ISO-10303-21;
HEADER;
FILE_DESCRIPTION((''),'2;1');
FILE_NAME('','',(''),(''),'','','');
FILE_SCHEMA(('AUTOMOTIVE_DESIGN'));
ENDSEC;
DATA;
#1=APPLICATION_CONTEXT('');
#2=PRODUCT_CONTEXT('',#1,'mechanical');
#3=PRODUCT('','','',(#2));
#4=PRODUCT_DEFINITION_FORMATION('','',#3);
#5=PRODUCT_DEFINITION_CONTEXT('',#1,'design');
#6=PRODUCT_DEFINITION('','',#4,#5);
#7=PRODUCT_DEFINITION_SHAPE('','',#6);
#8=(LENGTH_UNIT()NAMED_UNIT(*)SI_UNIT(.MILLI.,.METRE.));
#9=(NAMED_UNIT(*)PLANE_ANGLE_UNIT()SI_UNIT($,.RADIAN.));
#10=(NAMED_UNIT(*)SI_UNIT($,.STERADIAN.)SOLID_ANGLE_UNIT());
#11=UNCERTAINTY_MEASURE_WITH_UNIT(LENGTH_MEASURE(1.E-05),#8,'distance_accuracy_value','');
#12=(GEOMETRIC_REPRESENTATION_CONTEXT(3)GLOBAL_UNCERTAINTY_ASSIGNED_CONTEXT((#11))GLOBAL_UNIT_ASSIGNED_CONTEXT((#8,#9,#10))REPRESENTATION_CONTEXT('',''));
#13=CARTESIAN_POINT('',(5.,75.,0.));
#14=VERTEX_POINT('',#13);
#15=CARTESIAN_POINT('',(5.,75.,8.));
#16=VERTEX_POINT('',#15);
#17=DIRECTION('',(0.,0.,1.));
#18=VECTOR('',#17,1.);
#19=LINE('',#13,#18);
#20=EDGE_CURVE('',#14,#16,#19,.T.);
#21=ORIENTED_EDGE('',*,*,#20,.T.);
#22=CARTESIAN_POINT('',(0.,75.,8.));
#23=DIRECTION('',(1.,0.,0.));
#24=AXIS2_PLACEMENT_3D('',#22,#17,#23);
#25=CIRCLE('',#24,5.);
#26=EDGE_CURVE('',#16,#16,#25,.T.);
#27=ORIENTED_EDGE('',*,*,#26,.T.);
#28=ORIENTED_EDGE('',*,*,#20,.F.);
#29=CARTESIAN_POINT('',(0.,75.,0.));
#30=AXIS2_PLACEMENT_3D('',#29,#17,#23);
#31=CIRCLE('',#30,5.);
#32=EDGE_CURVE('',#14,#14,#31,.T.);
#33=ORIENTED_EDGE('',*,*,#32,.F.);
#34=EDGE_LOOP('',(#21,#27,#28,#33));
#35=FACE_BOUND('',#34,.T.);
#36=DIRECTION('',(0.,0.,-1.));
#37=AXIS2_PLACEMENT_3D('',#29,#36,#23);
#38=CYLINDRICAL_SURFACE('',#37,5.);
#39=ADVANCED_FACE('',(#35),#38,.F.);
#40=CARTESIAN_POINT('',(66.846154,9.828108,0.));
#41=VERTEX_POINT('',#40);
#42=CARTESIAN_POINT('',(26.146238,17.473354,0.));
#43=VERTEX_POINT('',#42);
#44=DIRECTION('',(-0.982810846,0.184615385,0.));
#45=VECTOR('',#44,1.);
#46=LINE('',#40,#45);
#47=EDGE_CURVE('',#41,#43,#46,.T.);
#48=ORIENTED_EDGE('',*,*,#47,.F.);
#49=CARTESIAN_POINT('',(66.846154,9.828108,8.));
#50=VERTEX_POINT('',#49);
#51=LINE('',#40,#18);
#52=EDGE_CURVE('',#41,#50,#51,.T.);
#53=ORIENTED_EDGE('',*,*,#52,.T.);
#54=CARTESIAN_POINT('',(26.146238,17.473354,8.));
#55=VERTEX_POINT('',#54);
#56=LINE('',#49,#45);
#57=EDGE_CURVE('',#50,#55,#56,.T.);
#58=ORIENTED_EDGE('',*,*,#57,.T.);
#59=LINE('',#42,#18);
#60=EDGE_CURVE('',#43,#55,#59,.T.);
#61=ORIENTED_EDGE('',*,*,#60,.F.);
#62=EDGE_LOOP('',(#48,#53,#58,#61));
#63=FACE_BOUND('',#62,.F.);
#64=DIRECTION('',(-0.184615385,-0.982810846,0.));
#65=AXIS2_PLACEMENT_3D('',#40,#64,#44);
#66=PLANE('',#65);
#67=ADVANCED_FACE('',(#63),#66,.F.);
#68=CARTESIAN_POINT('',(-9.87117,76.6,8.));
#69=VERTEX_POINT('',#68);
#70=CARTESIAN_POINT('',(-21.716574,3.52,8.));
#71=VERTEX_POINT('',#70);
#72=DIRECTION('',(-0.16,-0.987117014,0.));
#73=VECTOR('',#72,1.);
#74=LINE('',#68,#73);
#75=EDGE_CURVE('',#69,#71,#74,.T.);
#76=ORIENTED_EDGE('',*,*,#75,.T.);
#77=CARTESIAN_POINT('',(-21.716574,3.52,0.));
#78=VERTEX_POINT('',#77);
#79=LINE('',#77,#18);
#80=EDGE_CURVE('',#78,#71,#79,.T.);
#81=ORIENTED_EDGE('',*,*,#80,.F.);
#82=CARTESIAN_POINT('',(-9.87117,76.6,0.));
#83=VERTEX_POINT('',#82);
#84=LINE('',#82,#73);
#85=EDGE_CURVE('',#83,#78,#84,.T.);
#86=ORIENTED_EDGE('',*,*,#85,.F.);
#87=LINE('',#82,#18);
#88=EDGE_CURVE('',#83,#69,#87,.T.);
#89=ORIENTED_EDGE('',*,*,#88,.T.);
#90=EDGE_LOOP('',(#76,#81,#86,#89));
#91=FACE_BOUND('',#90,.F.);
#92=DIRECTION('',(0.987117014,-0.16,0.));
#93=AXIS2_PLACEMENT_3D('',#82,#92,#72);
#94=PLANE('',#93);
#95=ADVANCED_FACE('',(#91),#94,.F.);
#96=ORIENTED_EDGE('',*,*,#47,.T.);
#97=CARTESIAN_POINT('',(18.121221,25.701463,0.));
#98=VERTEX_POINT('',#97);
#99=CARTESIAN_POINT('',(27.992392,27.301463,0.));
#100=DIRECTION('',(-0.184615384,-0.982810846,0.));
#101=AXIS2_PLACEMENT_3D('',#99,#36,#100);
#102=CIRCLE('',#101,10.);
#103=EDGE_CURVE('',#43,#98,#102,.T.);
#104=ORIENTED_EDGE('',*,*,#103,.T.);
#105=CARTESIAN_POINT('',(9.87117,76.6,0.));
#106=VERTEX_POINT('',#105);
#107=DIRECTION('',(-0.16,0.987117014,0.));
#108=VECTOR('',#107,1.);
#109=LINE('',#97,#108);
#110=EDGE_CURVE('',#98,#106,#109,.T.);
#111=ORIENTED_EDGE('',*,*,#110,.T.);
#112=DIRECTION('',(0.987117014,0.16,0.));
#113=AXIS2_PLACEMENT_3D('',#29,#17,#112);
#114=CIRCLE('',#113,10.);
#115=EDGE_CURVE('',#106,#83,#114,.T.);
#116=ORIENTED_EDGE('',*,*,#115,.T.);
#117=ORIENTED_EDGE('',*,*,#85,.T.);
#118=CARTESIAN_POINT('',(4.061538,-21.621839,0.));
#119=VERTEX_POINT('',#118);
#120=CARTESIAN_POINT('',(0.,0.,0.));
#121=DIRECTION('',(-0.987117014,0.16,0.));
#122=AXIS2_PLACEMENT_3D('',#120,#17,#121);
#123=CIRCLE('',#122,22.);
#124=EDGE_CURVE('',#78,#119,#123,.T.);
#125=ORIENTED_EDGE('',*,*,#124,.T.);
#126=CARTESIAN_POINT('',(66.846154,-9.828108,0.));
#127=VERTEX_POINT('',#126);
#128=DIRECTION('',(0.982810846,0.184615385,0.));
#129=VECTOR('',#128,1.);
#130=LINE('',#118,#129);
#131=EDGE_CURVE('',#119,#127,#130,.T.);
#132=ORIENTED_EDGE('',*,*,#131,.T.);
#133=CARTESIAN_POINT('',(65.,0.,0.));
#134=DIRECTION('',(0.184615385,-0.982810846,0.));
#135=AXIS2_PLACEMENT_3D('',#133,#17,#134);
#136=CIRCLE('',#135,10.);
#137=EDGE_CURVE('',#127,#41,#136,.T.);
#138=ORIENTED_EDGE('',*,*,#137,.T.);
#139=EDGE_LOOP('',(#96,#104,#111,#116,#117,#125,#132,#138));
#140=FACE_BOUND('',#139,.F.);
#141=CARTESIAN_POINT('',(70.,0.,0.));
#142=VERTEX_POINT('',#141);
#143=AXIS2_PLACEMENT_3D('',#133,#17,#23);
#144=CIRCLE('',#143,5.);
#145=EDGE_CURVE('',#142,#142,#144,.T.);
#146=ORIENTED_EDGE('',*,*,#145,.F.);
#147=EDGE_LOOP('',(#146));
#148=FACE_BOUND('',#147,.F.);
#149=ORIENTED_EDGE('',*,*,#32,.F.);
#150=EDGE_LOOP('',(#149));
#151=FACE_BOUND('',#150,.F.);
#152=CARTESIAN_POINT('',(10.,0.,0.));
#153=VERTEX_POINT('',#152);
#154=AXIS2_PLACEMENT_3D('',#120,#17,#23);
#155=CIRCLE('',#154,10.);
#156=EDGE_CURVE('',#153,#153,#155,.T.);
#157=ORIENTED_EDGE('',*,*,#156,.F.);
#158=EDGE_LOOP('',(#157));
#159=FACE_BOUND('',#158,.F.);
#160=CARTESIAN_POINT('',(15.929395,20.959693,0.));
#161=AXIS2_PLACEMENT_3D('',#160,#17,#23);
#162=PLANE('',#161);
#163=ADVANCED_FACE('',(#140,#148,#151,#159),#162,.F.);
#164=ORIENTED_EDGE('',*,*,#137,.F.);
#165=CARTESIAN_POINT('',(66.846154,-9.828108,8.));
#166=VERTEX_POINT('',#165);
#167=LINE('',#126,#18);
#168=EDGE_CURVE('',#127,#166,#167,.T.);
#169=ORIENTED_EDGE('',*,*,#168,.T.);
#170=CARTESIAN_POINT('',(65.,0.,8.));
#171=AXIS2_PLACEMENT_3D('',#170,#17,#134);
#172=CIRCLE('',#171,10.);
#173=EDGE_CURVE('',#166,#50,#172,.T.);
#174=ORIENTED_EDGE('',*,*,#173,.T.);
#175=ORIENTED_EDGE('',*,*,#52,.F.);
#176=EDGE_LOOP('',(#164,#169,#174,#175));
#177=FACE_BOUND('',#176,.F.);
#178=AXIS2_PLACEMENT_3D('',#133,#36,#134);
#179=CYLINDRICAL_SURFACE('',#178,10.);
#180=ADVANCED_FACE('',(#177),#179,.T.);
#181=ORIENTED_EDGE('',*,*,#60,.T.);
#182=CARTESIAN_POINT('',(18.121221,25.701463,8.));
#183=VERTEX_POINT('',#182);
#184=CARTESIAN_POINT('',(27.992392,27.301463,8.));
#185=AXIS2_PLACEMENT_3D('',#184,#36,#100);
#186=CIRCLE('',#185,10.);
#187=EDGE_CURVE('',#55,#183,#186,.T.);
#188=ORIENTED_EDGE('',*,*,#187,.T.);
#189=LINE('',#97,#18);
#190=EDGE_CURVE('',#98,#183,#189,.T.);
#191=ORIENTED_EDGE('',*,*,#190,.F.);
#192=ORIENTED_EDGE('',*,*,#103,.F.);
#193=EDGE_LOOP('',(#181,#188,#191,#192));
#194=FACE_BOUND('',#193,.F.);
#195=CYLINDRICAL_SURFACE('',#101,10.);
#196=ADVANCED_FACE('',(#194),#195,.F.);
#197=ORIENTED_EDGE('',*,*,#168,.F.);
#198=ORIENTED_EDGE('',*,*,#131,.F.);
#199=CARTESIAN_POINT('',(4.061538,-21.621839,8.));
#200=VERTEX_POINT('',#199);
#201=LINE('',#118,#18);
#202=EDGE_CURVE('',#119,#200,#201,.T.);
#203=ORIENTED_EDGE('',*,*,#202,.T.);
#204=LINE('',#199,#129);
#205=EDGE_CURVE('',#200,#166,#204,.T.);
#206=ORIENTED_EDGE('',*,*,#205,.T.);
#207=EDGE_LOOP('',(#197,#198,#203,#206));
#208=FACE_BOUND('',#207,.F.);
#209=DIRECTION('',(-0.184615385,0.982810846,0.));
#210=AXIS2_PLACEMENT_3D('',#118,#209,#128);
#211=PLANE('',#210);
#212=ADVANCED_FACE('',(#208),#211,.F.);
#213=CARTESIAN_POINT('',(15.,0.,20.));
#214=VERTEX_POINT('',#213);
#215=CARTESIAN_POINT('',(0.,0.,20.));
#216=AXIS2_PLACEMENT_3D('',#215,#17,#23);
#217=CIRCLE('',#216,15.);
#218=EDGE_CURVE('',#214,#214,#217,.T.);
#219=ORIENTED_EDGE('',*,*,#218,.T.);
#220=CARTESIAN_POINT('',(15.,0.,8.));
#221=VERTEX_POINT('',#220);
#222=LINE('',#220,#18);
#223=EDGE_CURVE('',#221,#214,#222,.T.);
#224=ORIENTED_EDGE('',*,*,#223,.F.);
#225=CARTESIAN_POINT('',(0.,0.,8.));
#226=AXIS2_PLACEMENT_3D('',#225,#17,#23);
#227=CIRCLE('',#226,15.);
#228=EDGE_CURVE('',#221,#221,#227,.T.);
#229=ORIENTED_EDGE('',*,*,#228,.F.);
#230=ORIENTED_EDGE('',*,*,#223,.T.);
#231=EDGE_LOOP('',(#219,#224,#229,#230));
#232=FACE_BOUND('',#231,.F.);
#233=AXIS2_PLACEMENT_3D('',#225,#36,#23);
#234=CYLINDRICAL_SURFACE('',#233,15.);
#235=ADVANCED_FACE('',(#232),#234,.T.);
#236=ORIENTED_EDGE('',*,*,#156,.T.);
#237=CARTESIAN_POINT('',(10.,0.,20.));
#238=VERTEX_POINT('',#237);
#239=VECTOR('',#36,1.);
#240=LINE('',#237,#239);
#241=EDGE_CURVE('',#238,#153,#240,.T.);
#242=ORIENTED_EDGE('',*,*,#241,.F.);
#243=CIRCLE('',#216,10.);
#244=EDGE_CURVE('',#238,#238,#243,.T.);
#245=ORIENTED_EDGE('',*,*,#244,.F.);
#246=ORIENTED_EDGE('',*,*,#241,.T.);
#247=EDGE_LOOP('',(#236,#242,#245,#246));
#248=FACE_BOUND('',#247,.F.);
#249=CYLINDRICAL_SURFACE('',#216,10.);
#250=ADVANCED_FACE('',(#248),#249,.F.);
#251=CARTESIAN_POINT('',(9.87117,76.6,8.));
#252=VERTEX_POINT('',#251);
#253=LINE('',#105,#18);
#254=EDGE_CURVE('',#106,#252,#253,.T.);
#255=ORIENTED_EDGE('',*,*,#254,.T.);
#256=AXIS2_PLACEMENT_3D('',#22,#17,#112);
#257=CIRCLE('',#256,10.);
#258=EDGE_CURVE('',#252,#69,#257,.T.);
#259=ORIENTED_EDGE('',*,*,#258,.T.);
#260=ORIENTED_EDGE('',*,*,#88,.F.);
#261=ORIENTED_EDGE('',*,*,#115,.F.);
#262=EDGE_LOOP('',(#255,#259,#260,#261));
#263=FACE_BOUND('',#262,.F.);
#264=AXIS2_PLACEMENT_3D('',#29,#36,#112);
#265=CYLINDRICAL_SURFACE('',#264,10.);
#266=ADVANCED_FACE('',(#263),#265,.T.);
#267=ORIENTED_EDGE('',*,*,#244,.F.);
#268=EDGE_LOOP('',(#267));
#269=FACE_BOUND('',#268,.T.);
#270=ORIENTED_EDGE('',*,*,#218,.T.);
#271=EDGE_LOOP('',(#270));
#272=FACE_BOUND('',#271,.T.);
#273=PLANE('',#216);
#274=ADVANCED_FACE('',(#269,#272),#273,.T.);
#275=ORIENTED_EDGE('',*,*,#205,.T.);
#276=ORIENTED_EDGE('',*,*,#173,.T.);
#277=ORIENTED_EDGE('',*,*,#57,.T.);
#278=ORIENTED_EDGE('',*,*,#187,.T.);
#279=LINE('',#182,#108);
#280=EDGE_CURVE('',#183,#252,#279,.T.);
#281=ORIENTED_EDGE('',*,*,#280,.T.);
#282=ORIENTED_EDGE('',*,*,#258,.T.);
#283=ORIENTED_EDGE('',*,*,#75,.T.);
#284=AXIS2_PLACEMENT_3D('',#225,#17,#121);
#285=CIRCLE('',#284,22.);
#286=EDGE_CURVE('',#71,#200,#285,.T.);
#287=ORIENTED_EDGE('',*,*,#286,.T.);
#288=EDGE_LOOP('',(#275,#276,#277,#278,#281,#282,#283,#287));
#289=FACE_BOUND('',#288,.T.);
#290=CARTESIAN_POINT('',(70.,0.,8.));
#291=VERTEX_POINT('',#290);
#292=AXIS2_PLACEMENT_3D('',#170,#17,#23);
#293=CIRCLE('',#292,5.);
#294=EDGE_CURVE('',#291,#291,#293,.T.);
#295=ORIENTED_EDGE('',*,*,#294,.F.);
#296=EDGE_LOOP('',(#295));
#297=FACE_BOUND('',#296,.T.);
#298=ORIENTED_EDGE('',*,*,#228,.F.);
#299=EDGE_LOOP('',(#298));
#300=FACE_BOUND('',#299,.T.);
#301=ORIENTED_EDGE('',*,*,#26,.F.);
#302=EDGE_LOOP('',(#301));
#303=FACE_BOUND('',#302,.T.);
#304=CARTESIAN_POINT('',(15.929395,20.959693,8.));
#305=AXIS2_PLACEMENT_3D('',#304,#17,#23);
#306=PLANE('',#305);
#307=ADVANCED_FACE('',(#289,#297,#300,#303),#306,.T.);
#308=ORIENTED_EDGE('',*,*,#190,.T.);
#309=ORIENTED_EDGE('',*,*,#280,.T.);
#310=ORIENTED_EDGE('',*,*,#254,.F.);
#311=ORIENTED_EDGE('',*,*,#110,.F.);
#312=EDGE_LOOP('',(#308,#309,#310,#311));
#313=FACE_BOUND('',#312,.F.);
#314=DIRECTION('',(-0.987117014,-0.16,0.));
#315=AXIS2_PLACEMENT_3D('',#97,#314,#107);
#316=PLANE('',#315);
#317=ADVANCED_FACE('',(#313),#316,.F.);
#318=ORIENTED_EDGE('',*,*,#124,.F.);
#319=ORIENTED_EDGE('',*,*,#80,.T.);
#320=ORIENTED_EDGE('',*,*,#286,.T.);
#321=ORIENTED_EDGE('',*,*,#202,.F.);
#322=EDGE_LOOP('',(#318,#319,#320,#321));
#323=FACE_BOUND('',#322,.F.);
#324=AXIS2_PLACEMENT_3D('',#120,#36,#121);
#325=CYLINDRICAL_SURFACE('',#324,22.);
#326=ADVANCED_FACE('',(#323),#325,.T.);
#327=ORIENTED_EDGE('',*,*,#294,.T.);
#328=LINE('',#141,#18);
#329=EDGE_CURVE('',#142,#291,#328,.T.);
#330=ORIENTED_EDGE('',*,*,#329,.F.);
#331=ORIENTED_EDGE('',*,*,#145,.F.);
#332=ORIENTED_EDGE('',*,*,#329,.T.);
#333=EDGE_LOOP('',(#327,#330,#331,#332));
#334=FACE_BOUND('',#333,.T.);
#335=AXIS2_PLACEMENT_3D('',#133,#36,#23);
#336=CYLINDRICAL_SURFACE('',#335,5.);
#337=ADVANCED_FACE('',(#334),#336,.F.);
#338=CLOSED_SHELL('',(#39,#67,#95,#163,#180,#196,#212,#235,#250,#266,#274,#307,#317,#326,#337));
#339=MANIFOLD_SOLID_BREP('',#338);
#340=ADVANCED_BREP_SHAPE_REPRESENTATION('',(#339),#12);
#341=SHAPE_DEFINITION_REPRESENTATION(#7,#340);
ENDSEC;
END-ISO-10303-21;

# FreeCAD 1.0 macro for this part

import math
import FreeCAD as App
import Part
import Sketcher

V = App.Vector

doc = App.newDocument("Part")
params = doc.addObject("Spreadsheet::Sheet", "Params")
for row, (alias, value) in enumerate([
    ("sketch1_diameter", "10 mm"),
    ("sketch1_radius", "22 mm"),
    ("sketch1_radius2", "10 mm"),
    ("pad1_length", "8 mm"),
    ("sketch2_diameter", "30 mm"),
    ("pad2_length", "12 mm"),
    ("sketch3_diameter", "20 mm"),
], start=1):
    params.set(f"A{row}", alias)
    params.set(f"B{row}", "=" + value)
    params.setAlias(f"B{row}", alias)

body = doc.addObject("PartDesign::Body", "Body")

sketch1 = body.newObject("Sketcher::SketchObject", "Sketch")
sketch1.AttachmentSupport = (doc.getObject("XY_Plane"), [""])
sketch1.MapMode = "FlatFace"
sketch1.addGeometry([
    Part.LineSegment(V(-10, 77, 0), V(-22, 4, 0)),
    Part.ArcOfCircle(Part.Circle(V(0, 0, 0), V(0, 0, 1), 22), math.radians(171), math.radians(281)),
    Part.LineSegment(V(4, -22, 0), V(67, -10, 0)),
    Part.ArcOfCircle(Part.Circle(V(65, 0, 0), V(0, 0, 1), 10), math.radians(-79), math.radians(79)),
    Part.LineSegment(V(67, 10, 0), V(26, 17, 0)),
    Part.ArcOfCircle(Part.Circle(V(28, 27, 0), V(0, 0, 1), 10), math.radians(-171), math.radians(-101)),
    Part.LineSegment(V(18, 26, 0), V(10, 77, 0)),
    Part.ArcOfCircle(Part.Circle(V(0, 75, 0), V(0, 0, 1), 10), math.radians(9), math.radians(171)),
    Part.Circle(V(65, 0, 0), V(0, 0, 1), 5),
    Part.Circle(V(0, 75, 0), V(0, 0, 1), 5),
], False)
sketch1.addConstraint([
    Sketcher.Constraint("Tangent", 0, 2, 1, 1),
    Sketcher.Constraint("Tangent", 1, 2, 2, 1),
    Sketcher.Constraint("Tangent", 2, 2, 3, 1),
    Sketcher.Constraint("Tangent", 3, 2, 4, 1),
    Sketcher.Constraint("Tangent", 4, 2, 5, 2),
    Sketcher.Constraint("Tangent", 5, 1, 6, 1),
    Sketcher.Constraint("Tangent", 6, 2, 7, 1),
    Sketcher.Constraint("Tangent", 7, 2, 0, 1),
    Sketcher.Constraint("Coincident", 1, 3, -1, 1),
    Sketcher.Constraint("Coincident", 8, 3, 3, 3),
    Sketcher.Constraint("Coincident", 9, 3, 7, 3),
    Sketcher.Constraint("Equal", 3, 5),
    Sketcher.Constraint("Equal", 5, 7),
    Sketcher.Constraint("Equal", 8, 9),
    Sketcher.Constraint("Symmetric", 6, 2, 7, 2, -2),
    Sketcher.Constraint("Symmetric", 2, 2, 3, 2, -1),
    Sketcher.Constraint("Diameter", 8, 10.0),
    Sketcher.Constraint("Radius", 1, 22.0),
    Sketcher.Constraint("Radius", 3, 10.0),
    Sketcher.Constraint("DistanceX", -1, 1, 3, 3, 65.0),
    Sketcher.Constraint("DistanceY", -1, 1, 7, 3, 75.0),
])
sketch1.setExpression("Constraints[16]", "Params.sketch1_diameter")
sketch1.setExpression("Constraints[17]", "Params.sketch1_radius")
sketch1.setExpression("Constraints[18]", "Params.sketch1_radius2")
pad1 = body.newObject("PartDesign::Pad", "Pad")
pad1.Profile = sketch1
pad1.setExpression("Length", "Params.pad1_length")

sketch2 = body.newObject("Sketcher::SketchObject", "Sketch001")
sketch2.AttachmentSupport = (doc.getObject("XY_Plane"), [""])
sketch2.MapMode = "FlatFace"
sketch2.AttachmentOffset = App.Placement(V(0, 0, 8), App.Rotation())
sketch2.addGeometry(Part.Circle(V(0, 0, 0), V(0, 0, 1), 15), False)
sketch2.addConstraint([
    Sketcher.Constraint("Coincident", 0, 3, -1, 1),
    Sketcher.Constraint("Diameter", 0, 30.0),
])
sketch2.setExpression("Constraints[1]", "Params.sketch2_diameter")
pad2 = body.newObject("PartDesign::Pad", "Pad001")
pad2.Profile = sketch2
pad2.setExpression("Length", "Params.pad2_length")

sketch3 = body.newObject("Sketcher::SketchObject", "Sketch002")
sketch3.AttachmentSupport = (doc.getObject("XY_Plane"), [""])
sketch3.MapMode = "FlatFace"
sketch3.AttachmentOffset = App.Placement(V(0, 0, 20), App.Rotation())
sketch3.addGeometry(Part.Circle(V(0, 0, 0), V(0, 0, 1), 10), False)
sketch3.addConstraint([
    Sketcher.Constraint("Coincident", 0, 3, -1, 1),
    Sketcher.Constraint("Diameter", 0, 20.0),
])
sketch3.setExpression("Constraints[1]", "Params.sketch3_diameter")
pocket1 = body.newObject("PartDesign::Pocket", "Pocket")
pocket1.Profile = sketch3
pocket1.Type = "ThroughAll"

doc.recompute()
